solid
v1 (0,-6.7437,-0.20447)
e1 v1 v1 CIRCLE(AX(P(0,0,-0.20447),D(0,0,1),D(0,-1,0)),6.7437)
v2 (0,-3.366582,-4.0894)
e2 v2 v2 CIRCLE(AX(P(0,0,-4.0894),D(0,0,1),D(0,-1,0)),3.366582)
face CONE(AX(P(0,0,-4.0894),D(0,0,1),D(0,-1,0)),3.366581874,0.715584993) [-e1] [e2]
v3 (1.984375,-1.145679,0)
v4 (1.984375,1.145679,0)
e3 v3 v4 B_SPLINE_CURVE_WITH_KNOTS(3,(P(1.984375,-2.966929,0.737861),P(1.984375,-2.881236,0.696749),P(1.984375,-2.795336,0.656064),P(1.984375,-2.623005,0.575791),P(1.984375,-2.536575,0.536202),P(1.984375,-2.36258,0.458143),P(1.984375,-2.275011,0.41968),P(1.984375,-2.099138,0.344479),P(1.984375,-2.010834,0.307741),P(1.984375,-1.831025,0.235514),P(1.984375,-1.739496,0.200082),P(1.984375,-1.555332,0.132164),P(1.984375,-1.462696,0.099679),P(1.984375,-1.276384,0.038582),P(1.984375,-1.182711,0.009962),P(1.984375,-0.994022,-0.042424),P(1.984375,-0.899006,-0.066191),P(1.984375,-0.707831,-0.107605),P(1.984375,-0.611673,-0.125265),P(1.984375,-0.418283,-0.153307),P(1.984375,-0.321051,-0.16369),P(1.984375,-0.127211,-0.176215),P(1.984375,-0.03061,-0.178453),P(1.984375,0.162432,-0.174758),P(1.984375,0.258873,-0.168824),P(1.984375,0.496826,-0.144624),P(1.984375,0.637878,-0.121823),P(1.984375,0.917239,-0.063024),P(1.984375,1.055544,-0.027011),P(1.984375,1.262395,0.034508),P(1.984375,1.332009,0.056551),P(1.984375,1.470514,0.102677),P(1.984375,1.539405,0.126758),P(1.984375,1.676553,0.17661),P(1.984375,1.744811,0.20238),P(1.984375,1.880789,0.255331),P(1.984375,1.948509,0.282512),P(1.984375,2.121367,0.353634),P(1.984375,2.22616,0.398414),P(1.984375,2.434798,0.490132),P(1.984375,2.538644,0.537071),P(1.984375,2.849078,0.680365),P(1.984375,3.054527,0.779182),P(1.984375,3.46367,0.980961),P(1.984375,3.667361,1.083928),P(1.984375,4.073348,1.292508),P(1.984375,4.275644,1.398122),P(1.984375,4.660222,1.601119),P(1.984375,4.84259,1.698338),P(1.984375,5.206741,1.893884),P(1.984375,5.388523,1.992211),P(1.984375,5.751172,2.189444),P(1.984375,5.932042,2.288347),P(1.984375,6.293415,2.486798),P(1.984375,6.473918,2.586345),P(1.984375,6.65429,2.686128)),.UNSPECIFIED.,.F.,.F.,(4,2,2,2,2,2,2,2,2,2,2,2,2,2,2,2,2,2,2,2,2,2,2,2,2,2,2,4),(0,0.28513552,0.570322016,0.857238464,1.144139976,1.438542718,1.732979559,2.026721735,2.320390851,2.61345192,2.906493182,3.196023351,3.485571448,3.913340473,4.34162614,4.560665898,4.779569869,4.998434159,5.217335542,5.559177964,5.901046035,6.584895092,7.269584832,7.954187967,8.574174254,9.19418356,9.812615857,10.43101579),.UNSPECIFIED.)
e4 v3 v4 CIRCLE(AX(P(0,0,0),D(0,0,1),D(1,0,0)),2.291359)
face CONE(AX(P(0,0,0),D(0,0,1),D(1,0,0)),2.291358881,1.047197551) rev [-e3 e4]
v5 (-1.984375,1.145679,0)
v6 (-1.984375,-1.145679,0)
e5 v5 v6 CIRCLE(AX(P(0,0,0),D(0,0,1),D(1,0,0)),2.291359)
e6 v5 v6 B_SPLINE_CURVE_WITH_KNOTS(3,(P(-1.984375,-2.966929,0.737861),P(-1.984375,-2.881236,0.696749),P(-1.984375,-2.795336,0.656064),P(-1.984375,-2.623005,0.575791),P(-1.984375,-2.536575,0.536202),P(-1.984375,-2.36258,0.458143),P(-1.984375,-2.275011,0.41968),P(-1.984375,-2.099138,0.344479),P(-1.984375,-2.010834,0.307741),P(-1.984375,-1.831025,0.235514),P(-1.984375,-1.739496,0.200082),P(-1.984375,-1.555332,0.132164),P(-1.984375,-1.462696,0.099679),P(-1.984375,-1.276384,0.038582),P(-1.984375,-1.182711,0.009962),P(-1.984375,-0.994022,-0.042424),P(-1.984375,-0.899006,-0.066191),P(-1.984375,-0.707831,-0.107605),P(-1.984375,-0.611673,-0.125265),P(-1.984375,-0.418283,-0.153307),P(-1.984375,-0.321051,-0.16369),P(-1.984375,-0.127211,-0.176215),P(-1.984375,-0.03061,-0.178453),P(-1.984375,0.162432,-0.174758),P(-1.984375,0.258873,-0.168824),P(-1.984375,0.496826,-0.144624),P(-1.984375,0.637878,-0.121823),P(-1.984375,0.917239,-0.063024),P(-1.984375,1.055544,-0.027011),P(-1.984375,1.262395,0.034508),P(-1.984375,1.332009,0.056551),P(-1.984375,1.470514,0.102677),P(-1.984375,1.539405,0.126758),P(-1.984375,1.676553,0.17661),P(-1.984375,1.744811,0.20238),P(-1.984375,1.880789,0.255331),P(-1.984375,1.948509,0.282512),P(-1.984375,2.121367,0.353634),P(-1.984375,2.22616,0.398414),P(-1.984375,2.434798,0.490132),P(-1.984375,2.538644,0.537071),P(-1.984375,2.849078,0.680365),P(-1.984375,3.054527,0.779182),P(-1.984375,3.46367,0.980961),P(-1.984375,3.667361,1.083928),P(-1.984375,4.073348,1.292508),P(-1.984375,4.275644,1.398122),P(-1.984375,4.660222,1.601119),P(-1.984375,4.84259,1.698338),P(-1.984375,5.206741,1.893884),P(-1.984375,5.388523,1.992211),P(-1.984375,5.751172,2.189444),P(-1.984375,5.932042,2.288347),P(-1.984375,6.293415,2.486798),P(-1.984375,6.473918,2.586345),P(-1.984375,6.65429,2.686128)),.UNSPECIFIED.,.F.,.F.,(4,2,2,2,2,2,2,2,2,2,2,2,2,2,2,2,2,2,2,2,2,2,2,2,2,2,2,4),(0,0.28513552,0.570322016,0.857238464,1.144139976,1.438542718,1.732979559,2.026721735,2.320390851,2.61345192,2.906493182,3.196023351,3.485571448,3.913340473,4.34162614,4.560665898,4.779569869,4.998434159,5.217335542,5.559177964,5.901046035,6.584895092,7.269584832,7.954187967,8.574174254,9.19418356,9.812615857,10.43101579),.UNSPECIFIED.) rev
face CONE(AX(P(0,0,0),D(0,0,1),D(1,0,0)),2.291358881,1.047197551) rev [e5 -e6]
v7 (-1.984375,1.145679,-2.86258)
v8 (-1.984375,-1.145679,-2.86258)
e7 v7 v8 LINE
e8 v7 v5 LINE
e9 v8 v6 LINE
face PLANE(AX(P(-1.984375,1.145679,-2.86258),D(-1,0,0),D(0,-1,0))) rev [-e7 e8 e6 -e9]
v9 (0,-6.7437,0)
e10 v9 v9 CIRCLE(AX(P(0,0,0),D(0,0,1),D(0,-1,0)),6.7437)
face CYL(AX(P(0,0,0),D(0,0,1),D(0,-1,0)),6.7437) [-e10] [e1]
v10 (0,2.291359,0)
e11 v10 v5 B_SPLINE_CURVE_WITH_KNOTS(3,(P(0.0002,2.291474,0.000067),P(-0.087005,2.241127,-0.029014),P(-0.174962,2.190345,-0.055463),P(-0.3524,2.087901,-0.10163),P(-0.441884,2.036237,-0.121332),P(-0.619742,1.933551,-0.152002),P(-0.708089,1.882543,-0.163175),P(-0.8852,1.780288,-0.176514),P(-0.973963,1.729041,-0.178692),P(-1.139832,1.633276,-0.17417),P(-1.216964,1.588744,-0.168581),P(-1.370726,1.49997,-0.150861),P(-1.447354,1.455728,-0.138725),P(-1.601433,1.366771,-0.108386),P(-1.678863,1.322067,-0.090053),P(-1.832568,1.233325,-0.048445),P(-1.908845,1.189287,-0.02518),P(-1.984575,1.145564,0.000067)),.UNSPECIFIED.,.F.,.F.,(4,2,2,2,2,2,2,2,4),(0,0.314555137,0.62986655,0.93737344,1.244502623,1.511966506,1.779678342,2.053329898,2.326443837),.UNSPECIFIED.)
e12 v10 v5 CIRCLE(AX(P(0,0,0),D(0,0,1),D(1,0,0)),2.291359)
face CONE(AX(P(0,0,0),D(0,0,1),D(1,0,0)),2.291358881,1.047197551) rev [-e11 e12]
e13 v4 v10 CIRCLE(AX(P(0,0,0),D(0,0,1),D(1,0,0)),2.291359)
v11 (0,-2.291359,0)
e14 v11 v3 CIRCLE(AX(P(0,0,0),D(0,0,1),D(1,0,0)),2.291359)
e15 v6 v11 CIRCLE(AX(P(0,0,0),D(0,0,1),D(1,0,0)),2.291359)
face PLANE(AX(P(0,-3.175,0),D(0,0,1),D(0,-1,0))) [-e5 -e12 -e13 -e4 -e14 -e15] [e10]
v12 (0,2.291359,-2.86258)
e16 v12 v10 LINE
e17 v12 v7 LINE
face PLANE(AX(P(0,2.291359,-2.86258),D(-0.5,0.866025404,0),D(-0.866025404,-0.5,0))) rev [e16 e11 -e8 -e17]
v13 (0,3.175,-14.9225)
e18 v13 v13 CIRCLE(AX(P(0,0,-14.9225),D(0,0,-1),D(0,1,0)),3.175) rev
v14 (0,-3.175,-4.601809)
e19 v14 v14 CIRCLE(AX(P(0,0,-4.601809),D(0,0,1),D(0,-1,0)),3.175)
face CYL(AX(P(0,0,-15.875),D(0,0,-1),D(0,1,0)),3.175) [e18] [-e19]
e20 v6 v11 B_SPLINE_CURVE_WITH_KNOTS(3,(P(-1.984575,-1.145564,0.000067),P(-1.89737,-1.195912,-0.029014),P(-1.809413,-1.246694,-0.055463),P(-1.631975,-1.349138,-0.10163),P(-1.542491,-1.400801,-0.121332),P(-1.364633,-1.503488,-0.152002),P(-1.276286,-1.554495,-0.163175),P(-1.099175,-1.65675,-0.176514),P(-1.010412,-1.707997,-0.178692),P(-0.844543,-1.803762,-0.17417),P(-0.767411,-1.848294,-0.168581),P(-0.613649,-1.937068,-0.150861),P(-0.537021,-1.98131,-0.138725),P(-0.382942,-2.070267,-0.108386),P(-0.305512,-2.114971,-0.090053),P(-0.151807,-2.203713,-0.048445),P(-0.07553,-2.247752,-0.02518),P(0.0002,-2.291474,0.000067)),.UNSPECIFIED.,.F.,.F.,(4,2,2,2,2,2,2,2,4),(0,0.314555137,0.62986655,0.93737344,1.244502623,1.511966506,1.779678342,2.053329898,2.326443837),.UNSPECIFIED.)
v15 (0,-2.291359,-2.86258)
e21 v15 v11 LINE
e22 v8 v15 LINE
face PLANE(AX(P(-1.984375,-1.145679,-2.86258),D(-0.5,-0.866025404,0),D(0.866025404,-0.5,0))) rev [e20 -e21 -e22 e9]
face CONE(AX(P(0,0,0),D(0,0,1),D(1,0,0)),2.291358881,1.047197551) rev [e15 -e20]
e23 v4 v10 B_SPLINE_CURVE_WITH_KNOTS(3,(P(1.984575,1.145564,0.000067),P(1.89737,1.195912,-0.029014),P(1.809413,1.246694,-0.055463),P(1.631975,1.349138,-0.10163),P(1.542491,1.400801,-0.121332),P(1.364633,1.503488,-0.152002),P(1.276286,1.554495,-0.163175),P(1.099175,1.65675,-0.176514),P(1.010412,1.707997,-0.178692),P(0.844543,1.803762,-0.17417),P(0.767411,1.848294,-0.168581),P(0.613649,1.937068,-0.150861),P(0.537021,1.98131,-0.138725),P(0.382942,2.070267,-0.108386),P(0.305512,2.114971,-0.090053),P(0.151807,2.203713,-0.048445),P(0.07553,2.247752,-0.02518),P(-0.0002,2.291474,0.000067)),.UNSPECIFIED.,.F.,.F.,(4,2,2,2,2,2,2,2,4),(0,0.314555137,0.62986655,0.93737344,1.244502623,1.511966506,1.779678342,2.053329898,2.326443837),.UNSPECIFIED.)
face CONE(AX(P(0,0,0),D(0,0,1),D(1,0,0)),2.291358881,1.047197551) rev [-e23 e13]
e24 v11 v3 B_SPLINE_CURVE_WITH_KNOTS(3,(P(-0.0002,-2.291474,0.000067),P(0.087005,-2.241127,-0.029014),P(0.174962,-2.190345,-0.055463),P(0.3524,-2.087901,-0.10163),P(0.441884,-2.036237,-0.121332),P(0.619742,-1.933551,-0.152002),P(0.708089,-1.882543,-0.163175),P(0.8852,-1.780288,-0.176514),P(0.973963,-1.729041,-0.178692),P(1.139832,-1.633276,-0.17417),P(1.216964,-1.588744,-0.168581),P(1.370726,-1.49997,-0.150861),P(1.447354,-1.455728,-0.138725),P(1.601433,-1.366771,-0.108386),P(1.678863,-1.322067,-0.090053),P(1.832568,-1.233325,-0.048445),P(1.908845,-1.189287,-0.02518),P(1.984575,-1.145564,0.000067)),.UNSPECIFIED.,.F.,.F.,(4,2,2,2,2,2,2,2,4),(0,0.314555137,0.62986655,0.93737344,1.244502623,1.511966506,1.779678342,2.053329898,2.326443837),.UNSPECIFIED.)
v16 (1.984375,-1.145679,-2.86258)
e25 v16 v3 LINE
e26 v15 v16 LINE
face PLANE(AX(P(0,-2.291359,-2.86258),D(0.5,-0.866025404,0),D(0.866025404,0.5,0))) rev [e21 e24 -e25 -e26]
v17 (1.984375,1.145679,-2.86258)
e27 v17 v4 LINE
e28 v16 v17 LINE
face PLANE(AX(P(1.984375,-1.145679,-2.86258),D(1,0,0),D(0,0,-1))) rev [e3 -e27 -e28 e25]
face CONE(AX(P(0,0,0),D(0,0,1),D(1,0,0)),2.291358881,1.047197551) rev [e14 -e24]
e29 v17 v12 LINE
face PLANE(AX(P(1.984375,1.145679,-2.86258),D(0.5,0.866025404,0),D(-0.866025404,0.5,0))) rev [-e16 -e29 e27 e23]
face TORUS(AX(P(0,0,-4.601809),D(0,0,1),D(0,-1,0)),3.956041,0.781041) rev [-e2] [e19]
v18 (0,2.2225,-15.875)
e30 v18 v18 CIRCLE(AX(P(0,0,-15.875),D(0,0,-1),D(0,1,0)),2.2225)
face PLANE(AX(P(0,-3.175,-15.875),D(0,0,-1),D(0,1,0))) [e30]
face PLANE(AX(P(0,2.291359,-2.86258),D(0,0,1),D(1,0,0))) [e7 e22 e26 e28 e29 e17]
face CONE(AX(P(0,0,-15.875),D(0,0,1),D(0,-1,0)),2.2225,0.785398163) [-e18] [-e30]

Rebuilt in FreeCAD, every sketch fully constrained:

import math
import FreeCAD as App
import Part
import Sketcher
from FreeCAD import Vector
Q = App.Units.Quantity


def edges_at(feature, points):
    """Names of the edges that pass closest to the given points."""
    edges = feature.Shape.Edges
    near = lambda p: min(range(len(edges)), key=lambda i: edges[i].distToShape(Part.Vertex(*p))[0])
    return sorted({f"Edge{near(p) + 1}" for p in points})


def add_polygon(sketch, points):
    """Adds a closed chain of lines whose ends are joined by coincident constraints."""
    first, n = sketch.GeometryCount, len(points)
    for a, b in zip(points, points[1:] + points[:1]):
        sketch.addGeometry(Part.LineSegment(App.Vector(*a, 0), App.Vector(*b, 0)), False)
    for i in range(n):
        sketch.addConstraint(Sketcher.Constraint("Coincident", first + i, 2, first + (i + 1) % n, 1))

doc = App.newDocument("Part")
body = doc.addObject("PartDesign::Body", "Body")

# Sketch on YZ plane
sketch1 = body.newObject("Sketcher::SketchObject", "Sketch")
sketch1.AttachmentSupport = (doc.getObject("YZ_Plane"), [""])
sketch1.MapMode = "FlatFace"
add_polygon(sketch1, [(3.175, 0), (0, 0), (0, -15.875), (3.175, -15.875)])  # lines 0-3
sketch1.addConstraint(Sketcher.Constraint("Horizontal", 0))
sketch1.addConstraint(Sketcher.Constraint("Vertical", 1))
sketch1.addConstraint(Sketcher.Constraint("Horizontal", 2))
sketch1.addConstraint(Sketcher.Constraint("Vertical", 3))
sketch1.addConstraint(Sketcher.Constraint("Coincident", 0, 2, -1, 1))
sketch1.addConstraint(Sketcher.Constraint("DistanceX", 0, 2, 0, 1, Q("0.125 in")))
sketch1.addConstraint(Sketcher.Constraint("DistanceY", 1, 2, 1, 1, Q("0.625 in")))
revolution = body.newObject("PartDesign::Revolution", "Revolution")
revolution.Profile = sketch1
revolution.ReferenceAxis = (sketch1, ["V_Axis"])
revolution.Angle = 360
doc.recompute()

chamfer = body.newObject("PartDesign::Chamfer", "Chamfer")
chamfer.Base = (revolution, edges_at(revolution, [(0, -3.175, -15.875)]))
chamfer.Size = Q("0.0375 in")

# Sketch on YZ plane
sketch2 = body.newObject("Sketcher::SketchObject", "Sketch001")
sketch2.AttachmentSupport = (doc.getObject("YZ_Plane"), [""])
sketch2.MapMode = "FlatFace"
sketch2.addGeometry(Part.LineSegment(Vector(6.7437, -0.20447, 0), Vector(6.7437, 0, 0)), False)
sketch2.addGeometry(Part.LineSegment(Vector(6.7437, 0, 0), Vector(0, 0, 0)), False)
sketch2.addGeometry(Part.LineSegment(Vector(0, 0, 0), Vector(0, -4.601809, 0)), False)
sketch2.addGeometry(Part.LineSegment(Vector(0, -4.601809, 0), Vector(3.175, -4.601809, 0)), False)
sketch2.addGeometry(Part.ArcOfCircle(Part.Circle(Vector(3.956041, -4.601809, 0), Vector(0, 0, 1), 0.781041), math.radians(139), math.radians(180)), False)
sketch2.addGeometry(Part.LineSegment(Vector(3.366582, -4.0894, 0), Vector(6.7437, -0.20447, 0)), False)
sketch2.addConstraint(Sketcher.Constraint("Coincident", 0, 2, 1, 1))
sketch2.addConstraint(Sketcher.Constraint("Coincident", 1, 2, 2, 1))
sketch2.addConstraint(Sketcher.Constraint("Coincident", 2, 2, 3, 1))
sketch2.addConstraint(Sketcher.Constraint("Coincident", 3, 2, 4, 2))
sketch2.addConstraint(Sketcher.Constraint("Tangent", 4, 1, 5, 1))
sketch2.addConstraint(Sketcher.Constraint("Coincident", 5, 2, 0, 1))
sketch2.addConstraint(Sketcher.Constraint("Vertical", 0))
sketch2.addConstraint(Sketcher.Constraint("Horizontal", 1))
sketch2.addConstraint(Sketcher.Constraint("Vertical", 2))
sketch2.addConstraint(Sketcher.Constraint("Horizontal", 3))
sketch2.addConstraint(Sketcher.Constraint("Coincident", 1, 2, -1, 1))
sketch2.addConstraint(Sketcher.Constraint("Horizontal", 4, 3, 2, 2))
sketch2.addConstraint(Sketcher.Constraint("Angle", 5, Q("49 deg")))
sketch2.addConstraint(Sketcher.Constraint("DistanceX", 3, 1, 3, 2, Q("0.125 in")))
sketch2.addConstraint(Sketcher.Constraint("DistanceX", 1, 2, 1, 1, Q("0.2655 in")))
sketch2.addConstraint(Sketcher.Constraint("DistanceY", 4, 1, -1, 1, Q("0.161 in")))
sketch2.addConstraint(Sketcher.Constraint("Radius", 4, 0.781041))
revolution2 = body.newObject("PartDesign::Revolution", "Revolution001")
revolution2.Profile = sketch2
revolution2.ReferenceAxis = (sketch2, ["V_Axis"])
revolution2.Angle = 360

# Sketch on YZ plane
sketch3 = body.newObject("Sketcher::SketchObject", "Sketch002")
sketch3.AttachmentSupport = (doc.getObject("YZ_Plane"), [""])
sketch3.MapMode = "FlatFace"
add_polygon(sketch3, [(0, -4.601809), (-3.175, -4.601809), (0, -7.667871)])  # lines 0-2
sketch3.addConstraint(Sketcher.Constraint("Horizontal", 0))
sketch3.addConstraint(Sketcher.Constraint("Vertical", 2))
sketch3.addConstraint(Sketcher.Constraint("PointOnObject", 1, 2, -2))
sketch3.addConstraint(Sketcher.Constraint("Angle", 1, Q("-44 deg")))
sketch3.addConstraint(Sketcher.Constraint("DistanceX", 0, 2, 0, 1, Q("0.125 in")))
sketch3.addConstraint(Sketcher.Constraint("DistanceY", 0, 2, -1, 1, 4.601809))
revolution3 = body.newObject("PartDesign::Revolution", "Revolution002")
revolution3.Profile = sketch3
revolution3.ReferenceAxis = (sketch3, ["V_Axis"])
revolution3.Angle = 360

# Sketch on XY plane
sketch4 = body.newObject("Sketcher::SketchObject", "Sketch003")
sketch4.AttachmentSupport = (doc.getObject("XY_Plane"), [""])
sketch4.MapMode = "FlatFace"
add_polygon(sketch4, [(0, 2.291359), (-1.984375, 1.145679), (-1.984375, -1.145679), (0, -2.291359), (1.984375, -1.145679), (1.984375, 1.145679)])  # lines 0-5
sketch4.addConstraint(Sketcher.Constraint("Vertical", 1))
sketch4.addConstraint(Sketcher.Constraint("Vertical", 4))
sketch4.addConstraint(Sketcher.Constraint("Symmetric", 0, 2, 3, 2, -1, 1))
sketch4.addConstraint(Sketcher.Constraint("Symmetric", 2, 2, 5, 2, -1, 1))
sketch4.addConstraint(Sketcher.Constraint("PointOnObject", 2, 2, -2))
sketch4.addConstraint(Sketcher.Constraint("Parallel", 2, 5))
sketch4.addConstraint(Sketcher.Constraint("Horizontal", 1, 2, 3, 2))
sketch4.addConstraint(Sketcher.Constraint("Angle", 0, Q("-150 deg")))
sketch4.addConstraint(Sketcher.Constraint("DistanceX", 0, 2, -1, 1, Q("0.078125 in")))
sketch4.addConstraint(Sketcher.Constraint("DistanceY", 1, 2, 1, 1, 2.291359))
pocket1 = body.newObject("PartDesign::Pocket", "Pocket")
pocket1.Profile = sketch4
pocket1.Length = Q("0.1127 in")

# Sketch on YZ plane
sketch5 = body.newObject("Sketcher::SketchObject", "Sketch004")
sketch5.AttachmentSupport = (doc.getObject("YZ_Plane"), [""])
sketch5.MapMode = "FlatFace"
add_polygon(sketch5, [(0, 0), (-2.291359, 0), (0, -1.322917)])  # lines 0-2
sketch5.addConstraint(Sketcher.Constraint("Horizontal", 0))
sketch5.addConstraint(Sketcher.Constraint("Vertical", 2))
sketch5.addConstraint(Sketcher.Constraint("Coincident", 2, 2, -1, 1))
sketch5.addConstraint(Sketcher.Constraint("Angle", 1, Q("-30 deg")))
sketch5.addConstraint(Sketcher.Constraint("DistanceX", 0, 2, 0, 1, 2.291359))
groove = body.newObject("PartDesign::Groove", "Groove")
groove.Profile = sketch5
groove.ReferenceAxis = (sketch5, ["V_Axis"])
groove.Angle = 360

doc.recompute()
